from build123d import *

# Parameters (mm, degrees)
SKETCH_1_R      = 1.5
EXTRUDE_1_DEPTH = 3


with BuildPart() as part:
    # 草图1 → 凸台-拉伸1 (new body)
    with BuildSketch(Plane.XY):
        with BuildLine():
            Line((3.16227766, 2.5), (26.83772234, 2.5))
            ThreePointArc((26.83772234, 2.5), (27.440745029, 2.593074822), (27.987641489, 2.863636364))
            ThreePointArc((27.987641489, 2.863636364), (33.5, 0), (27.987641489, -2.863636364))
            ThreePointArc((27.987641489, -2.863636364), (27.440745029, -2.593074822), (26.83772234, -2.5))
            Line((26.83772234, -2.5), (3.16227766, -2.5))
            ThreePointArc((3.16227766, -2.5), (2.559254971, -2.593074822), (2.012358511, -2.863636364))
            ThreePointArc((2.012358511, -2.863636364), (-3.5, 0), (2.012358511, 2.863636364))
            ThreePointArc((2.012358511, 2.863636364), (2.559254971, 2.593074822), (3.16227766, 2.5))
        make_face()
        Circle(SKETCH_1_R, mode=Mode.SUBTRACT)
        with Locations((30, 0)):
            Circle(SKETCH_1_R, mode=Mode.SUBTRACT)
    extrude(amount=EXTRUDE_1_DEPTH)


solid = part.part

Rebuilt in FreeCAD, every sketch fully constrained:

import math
import FreeCAD as App
import Part
import Sketcher
from FreeCAD import Vector

doc = App.newDocument("Part")
body = doc.addObject("PartDesign::Body", "Body")

# Sketch on XY plane
sketch1 = body.newObject("Sketcher::SketchObject", "Sketch")
sketch1.AttachmentSupport = (doc.getObject("XY_Plane"), [""])
sketch1.MapMode = "FlatFace"
sketch1.addGeometry(Part.LineSegment(Vector(26.837722, 2.5, 0), Vector(3.162278, 2.5, 0)), False)
sketch1.addGeometry(Part.ArcOfCircle(Part.Circle(Vector(3.162278, 4.5, 0), Vector(0, 0, 1), 2), math.radians(-125.096801), math.radians(-90)), False)
sketch1.addGeometry(Part.ArcOfCircle(Part.Circle(Vector(0, 0, 0), Vector(0, 0, 1), 3.5), math.radians(54.903199), math.radians(305.096801)), False)
sketch1.addGeometry(Part.ArcOfCircle(Part.Circle(Vector(3.162278, -4.5, 0), Vector(0, 0, 1), 2), math.radians(90), math.radians(125.096801)), False)
sketch1.addGeometry(Part.LineSegment(Vector(3.162278, -2.5, 0), Vector(26.837722, -2.5, 0)), False)
sketch1.addGeometry(Part.ArcOfCircle(Part.Circle(Vector(26.837722, -4.5, 0), Vector(0, 0, 1), 2), math.radians(54.903199), math.radians(90)), False)
sketch1.addGeometry(Part.ArcOfCircle(Part.Circle(Vector(30, 0, 0), Vector(0, 0, 1), 3.5), math.radians(-125.096801), math.radians(125.096801)), False)
sketch1.addGeometry(Part.ArcOfCircle(Part.Circle(Vector(26.837722, 4.5, 0), Vector(0, 0, 1), 2), math.radians(-90), math.radians(-54.903199)), False)
sketch1.addGeometry(Part.Circle(Vector(30, 0, 0), Vector(0, 0, 1), 1.5), False)
sketch1.addGeometry(Part.Circle(Vector(0, 0, 0), Vector(0, 0, 1), 1.5), False)
sketch1.addConstraint(Sketcher.Constraint("Tangent", 0, 2, 1, 2))
sketch1.addConstraint(Sketcher.Constraint("Tangent", 1, 1, 2, 1))
sketch1.addConstraint(Sketcher.Constraint("Tangent", 2, 2, 3, 2))
sketch1.addConstraint(Sketcher.Constraint("Tangent", 3, 1, 4, 1))
sketch1.addConstraint(Sketcher.Constraint("Tangent", 4, 2, 5, 2))
sketch1.addConstraint(Sketcher.Constraint("Tangent", 5, 1, 6, 1))
sketch1.addConstraint(Sketcher.Constraint("Tangent", 6, 2, 7, 2))
sketch1.addConstraint(Sketcher.Constraint("Tangent", 7, 1, 0, 1))
sketch1.addConstraint(Sketcher.Constraint("Horizontal", 0))
sketch1.addConstraint(Sketcher.Constraint("Horizontal", 4))
sketch1.addConstraint(Sketcher.Constraint("Coincident", 2, 3, -1, 1))
sketch1.addConstraint(Sketcher.Constraint("Coincident", 9, 3, -1, 1))
sketch1.addConstraint(Sketcher.Constraint("Coincident", 8, 3, 6, 3))
sketch1.addConstraint(Sketcher.Constraint("Equal", 1, 3))
sketch1.addConstraint(Sketcher.Constraint("Equal", 3, 5))
sketch1.addConstraint(Sketcher.Constraint("Equal", 2, 6))
sketch1.addConstraint(Sketcher.Constraint("Equal", 5, 7))
sketch1.addConstraint(Sketcher.Constraint("Equal", 8, 9))
sketch1.addConstraint(Sketcher.Constraint("Symmetric", 5, 3, 7, 3, -1))
sketch1.addConstraint(Sketcher.Constraint("Diameter", 8, 3.0))
sketch1.addConstraint(Sketcher.Constraint("Radius", 1, 2.0))
sketch1.addConstraint(Sketcher.Constraint("Radius", 2, 3.5))
sketch1.addConstraint(Sketcher.Constraint("DistanceX", -1, 1, 6, 3, 30.0))
sketch1.addConstraint(Sketcher.Constraint("DistanceY", 3, 3, 1, 3, 9.0))
pad1 = body.newObject("PartDesign::Pad", "Pad")
pad1.Profile = sketch1
pad1.Length = 3

doc.recompute()
